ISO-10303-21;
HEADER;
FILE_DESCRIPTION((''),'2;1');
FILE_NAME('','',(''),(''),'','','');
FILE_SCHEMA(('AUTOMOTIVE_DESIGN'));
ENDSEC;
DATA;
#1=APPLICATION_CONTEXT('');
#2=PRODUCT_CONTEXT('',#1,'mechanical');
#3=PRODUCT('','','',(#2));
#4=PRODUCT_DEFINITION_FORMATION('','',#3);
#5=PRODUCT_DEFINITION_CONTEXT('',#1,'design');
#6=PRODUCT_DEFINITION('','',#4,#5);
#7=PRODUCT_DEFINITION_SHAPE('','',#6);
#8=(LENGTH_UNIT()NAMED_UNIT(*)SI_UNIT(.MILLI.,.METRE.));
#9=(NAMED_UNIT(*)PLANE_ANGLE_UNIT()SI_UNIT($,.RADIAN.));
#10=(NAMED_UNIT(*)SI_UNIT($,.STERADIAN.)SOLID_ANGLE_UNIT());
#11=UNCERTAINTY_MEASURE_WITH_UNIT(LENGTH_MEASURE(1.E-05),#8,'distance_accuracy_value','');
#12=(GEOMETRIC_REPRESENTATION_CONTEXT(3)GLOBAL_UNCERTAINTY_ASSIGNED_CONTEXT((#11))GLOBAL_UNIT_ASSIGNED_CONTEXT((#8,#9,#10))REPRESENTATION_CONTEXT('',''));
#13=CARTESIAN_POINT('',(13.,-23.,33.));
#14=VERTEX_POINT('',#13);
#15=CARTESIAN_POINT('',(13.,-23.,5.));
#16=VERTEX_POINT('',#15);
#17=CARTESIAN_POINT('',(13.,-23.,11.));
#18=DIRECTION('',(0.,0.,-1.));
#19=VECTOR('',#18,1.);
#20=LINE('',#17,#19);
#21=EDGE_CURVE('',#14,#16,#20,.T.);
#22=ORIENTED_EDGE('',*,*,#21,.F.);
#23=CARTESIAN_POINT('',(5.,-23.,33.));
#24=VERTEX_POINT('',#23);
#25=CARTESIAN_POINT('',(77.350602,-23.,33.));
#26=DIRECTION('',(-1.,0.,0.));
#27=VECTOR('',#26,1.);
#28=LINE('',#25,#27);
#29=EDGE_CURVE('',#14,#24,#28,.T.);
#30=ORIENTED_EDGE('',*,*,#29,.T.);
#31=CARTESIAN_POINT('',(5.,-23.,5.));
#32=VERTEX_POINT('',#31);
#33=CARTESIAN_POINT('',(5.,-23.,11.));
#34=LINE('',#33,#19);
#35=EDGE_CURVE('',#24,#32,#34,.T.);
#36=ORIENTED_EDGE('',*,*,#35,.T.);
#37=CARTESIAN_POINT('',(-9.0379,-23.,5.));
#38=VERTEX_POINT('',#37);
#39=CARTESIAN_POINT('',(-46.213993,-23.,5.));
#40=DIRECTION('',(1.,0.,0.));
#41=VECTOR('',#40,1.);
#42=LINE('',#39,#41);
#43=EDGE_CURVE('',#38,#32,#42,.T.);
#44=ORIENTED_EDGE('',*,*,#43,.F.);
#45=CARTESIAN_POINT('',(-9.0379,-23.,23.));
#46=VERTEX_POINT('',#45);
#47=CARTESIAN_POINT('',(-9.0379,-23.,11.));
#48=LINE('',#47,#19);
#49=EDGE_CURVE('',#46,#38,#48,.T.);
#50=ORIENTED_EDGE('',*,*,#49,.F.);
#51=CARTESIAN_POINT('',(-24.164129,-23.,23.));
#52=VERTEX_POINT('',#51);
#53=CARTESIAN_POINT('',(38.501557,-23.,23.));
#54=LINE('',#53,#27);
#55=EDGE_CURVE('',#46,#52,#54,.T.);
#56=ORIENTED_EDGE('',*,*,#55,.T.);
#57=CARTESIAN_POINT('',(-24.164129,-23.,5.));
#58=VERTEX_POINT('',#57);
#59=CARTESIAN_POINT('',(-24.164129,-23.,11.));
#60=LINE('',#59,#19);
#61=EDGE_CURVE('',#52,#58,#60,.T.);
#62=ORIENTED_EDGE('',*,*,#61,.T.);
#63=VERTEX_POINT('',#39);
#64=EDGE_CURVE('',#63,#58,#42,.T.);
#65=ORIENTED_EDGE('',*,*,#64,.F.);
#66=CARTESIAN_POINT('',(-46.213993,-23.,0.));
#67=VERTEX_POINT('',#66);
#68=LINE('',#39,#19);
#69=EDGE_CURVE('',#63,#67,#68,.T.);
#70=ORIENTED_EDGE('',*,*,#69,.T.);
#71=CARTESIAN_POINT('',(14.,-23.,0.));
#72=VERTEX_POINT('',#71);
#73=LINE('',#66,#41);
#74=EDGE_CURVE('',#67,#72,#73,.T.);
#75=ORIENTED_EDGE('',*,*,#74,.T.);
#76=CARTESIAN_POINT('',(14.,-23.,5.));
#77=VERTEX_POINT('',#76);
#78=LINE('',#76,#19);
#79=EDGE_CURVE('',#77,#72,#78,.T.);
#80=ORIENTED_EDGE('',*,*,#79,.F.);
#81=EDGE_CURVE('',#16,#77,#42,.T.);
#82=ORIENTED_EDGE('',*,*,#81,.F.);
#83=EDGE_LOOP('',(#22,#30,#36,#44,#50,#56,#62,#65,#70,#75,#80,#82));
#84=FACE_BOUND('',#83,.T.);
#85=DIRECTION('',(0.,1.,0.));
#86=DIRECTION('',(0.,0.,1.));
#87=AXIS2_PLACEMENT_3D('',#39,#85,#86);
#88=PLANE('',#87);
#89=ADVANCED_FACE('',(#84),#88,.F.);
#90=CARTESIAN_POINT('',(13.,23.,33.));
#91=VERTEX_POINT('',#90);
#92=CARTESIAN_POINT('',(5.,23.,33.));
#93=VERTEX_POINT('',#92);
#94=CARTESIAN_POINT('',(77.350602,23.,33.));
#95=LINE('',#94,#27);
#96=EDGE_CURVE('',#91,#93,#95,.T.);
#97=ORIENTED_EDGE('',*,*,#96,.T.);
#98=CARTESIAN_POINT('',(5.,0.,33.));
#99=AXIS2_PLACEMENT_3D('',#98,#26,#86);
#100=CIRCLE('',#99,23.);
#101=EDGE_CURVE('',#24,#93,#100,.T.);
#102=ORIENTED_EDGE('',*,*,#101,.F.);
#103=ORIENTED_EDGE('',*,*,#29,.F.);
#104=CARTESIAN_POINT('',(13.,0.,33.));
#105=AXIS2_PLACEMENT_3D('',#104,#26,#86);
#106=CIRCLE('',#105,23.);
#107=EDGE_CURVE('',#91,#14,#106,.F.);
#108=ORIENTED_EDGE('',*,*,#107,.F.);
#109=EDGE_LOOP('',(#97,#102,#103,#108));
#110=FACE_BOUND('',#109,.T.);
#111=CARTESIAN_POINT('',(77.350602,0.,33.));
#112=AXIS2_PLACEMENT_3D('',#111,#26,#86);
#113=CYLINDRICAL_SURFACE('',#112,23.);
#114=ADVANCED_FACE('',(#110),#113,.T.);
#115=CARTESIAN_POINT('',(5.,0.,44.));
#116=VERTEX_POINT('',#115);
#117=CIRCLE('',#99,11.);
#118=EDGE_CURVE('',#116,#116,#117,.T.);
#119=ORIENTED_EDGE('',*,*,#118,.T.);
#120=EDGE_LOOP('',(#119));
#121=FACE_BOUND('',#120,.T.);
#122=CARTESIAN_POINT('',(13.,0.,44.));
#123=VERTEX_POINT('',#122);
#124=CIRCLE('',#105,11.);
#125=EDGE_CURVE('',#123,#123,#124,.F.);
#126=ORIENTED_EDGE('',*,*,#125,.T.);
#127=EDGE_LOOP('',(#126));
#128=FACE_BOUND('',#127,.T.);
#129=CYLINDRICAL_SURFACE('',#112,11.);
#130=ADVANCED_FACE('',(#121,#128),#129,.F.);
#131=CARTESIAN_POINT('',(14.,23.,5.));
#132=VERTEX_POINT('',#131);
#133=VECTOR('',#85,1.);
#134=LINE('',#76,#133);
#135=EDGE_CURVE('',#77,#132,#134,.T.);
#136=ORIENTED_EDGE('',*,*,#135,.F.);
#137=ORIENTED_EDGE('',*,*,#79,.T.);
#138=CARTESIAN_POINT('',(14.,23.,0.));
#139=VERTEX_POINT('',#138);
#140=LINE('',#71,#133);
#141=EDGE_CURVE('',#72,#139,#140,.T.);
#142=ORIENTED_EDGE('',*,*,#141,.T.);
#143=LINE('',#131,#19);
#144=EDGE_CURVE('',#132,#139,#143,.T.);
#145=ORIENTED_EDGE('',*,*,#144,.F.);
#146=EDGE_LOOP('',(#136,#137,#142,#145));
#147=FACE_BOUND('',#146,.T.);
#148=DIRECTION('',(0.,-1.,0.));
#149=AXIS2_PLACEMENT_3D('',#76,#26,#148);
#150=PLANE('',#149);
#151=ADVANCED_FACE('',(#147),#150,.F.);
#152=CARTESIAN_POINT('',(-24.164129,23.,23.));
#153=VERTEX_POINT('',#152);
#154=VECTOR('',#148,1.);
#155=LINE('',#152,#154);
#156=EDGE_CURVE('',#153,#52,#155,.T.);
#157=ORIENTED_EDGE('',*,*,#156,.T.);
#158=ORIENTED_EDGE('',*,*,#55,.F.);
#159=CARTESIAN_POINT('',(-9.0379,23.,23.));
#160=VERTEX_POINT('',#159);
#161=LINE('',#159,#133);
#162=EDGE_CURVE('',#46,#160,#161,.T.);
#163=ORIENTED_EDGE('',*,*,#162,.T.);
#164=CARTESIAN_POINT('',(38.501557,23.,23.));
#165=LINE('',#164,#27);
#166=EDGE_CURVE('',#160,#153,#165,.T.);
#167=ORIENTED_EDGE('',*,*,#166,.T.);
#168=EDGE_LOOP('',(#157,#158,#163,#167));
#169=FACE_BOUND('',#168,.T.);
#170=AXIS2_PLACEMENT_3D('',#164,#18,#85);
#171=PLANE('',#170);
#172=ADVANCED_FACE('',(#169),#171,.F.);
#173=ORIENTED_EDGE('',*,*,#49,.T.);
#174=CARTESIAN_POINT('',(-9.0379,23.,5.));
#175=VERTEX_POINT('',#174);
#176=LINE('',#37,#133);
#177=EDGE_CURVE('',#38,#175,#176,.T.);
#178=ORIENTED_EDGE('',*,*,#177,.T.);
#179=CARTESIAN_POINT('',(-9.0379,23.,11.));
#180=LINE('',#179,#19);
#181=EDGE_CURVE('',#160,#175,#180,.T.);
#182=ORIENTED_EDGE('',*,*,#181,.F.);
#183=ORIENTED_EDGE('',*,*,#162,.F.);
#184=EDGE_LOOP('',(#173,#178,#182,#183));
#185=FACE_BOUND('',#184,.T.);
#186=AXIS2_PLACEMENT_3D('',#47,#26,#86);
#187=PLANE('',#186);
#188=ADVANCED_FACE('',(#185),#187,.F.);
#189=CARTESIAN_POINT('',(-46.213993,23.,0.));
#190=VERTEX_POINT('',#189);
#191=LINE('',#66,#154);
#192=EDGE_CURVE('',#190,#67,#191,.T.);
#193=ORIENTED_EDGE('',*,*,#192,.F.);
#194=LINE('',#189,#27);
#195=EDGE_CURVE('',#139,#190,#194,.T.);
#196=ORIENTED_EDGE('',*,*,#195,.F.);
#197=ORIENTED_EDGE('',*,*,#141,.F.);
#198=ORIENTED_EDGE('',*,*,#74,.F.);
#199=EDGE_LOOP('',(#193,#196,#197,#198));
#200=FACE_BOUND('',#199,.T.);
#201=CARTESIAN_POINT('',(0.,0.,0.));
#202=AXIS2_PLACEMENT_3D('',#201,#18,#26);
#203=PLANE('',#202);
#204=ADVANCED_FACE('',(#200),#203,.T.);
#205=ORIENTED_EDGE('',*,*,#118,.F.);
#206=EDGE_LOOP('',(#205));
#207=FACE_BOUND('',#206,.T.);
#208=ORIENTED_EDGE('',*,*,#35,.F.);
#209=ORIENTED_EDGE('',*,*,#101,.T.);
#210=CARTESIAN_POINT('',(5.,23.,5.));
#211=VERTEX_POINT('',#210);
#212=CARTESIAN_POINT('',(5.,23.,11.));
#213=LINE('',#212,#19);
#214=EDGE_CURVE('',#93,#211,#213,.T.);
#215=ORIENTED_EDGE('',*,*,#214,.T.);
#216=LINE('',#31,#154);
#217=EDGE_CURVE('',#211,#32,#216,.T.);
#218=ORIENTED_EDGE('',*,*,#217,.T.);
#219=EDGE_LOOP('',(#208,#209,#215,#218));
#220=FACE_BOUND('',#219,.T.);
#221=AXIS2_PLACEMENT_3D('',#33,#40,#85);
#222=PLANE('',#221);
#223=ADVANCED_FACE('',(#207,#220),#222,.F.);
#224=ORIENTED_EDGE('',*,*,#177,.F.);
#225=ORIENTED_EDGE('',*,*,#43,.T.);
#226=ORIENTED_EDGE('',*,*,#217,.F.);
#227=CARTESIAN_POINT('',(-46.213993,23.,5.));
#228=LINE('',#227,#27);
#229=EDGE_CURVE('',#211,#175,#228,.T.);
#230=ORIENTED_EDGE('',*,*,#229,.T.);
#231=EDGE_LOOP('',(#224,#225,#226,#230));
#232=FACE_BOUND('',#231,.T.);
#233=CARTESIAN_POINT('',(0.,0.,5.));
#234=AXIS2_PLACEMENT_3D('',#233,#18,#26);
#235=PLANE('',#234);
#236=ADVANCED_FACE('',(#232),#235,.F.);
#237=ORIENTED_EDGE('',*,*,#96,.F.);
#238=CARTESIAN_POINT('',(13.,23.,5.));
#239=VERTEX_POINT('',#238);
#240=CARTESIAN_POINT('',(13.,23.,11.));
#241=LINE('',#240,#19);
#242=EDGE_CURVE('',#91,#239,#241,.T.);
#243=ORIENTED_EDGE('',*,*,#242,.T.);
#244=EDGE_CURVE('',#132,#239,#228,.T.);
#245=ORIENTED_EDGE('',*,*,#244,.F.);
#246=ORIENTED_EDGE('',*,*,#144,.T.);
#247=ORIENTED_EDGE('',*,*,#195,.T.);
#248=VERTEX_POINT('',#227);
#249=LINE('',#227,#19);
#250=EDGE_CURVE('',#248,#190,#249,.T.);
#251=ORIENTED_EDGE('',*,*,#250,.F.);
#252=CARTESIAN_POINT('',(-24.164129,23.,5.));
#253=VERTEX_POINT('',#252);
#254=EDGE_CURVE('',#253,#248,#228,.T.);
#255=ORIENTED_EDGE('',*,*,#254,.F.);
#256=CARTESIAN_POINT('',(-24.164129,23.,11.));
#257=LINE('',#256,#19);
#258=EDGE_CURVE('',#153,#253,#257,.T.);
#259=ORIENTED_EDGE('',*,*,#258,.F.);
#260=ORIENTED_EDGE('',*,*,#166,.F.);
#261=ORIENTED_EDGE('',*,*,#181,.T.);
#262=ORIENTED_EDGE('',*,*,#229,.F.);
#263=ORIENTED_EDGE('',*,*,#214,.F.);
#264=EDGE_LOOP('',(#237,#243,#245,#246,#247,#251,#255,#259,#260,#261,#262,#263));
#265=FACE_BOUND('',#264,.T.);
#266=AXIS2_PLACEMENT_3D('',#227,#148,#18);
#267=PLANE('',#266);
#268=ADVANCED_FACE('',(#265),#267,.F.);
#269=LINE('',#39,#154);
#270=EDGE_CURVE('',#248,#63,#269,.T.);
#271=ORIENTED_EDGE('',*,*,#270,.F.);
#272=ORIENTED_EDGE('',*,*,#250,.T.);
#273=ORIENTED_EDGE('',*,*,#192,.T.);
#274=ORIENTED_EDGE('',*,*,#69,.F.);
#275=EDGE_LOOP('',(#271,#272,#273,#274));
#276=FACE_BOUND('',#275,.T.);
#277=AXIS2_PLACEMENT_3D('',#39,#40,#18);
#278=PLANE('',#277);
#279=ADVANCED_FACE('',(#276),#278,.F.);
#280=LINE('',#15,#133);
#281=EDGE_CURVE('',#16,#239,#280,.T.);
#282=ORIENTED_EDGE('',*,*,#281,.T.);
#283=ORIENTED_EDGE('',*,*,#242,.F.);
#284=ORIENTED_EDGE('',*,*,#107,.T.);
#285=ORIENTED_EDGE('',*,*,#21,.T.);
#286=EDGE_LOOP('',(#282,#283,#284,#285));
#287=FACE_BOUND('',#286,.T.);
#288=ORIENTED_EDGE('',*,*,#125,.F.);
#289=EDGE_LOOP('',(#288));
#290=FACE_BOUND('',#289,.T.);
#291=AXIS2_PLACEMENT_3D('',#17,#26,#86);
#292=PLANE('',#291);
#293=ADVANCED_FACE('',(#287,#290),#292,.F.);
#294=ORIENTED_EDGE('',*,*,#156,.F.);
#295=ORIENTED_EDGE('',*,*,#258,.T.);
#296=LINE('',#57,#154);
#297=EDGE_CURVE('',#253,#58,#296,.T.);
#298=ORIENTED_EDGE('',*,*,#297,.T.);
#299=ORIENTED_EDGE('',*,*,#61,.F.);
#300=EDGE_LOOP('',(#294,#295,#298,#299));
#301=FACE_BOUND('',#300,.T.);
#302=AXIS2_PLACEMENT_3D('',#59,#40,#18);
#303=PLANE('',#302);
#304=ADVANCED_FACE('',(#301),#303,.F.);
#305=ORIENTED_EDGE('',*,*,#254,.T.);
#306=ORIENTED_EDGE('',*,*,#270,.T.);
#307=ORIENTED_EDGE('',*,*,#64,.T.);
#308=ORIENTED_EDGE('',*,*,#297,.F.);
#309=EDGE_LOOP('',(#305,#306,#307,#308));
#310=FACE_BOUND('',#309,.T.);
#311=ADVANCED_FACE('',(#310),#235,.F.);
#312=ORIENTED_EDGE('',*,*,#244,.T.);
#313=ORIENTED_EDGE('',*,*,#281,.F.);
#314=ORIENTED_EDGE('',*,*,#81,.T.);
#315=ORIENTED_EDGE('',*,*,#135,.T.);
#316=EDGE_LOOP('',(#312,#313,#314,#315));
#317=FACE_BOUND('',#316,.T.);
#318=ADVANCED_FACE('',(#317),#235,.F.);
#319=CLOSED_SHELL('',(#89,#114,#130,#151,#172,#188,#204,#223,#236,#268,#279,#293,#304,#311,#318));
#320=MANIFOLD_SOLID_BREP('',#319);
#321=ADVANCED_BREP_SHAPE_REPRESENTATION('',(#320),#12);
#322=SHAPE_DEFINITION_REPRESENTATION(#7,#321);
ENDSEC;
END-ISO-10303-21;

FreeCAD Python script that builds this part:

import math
import FreeCAD as App
import Part
import Sketcher

V = App.Vector

doc = App.newDocument("Part")
body = doc.addObject("PartDesign::Body", "Body")

# Sketch on XY plane
sketch1 = body.newObject("Sketcher::SketchObject", "Sketch")
sketch1.AttachmentSupport = (doc.getObject("XY_Plane"), [""])
sketch1.MapMode = "FlatFace"
sketch1.addGeometry([
    Part.LineSegment(V(-46.213993, 23, 0), V(-46.213993, -23, 0)),
    Part.LineSegment(V(-46.213993, -23, 0), V(14, -23, 0)),
    Part.LineSegment(V(14, -23, 0), V(14, 23, 0)),
    Part.LineSegment(V(14, 23, 0), V(-46.213993, 23, 0)),
], False)
sketch1.addConstraint([
    Sketcher.Constraint("Coincident", 0, 2, 1, 1),
    Sketcher.Constraint("Coincident", 1, 2, 2, 1),
    Sketcher.Constraint("Coincident", 2, 2, 3, 1),
    Sketcher.Constraint("Coincident", 3, 2, 0, 1),
    Sketcher.Constraint("Vertical", 0),
    Sketcher.Constraint("Horizontal", 1),
    Sketcher.Constraint("Vertical", 2),
    Sketcher.Constraint("Horizontal", 3),
    Sketcher.Constraint("DistanceY", 0, 2, 0, 1, 46.0),
    Sketcher.Constraint("DistanceY", 0, 2, -1, 1, 23.0),
    Sketcher.Constraint("DistanceX", -1, 1, 1, 2, 14.0),
    Sketcher.Constraint("DistanceX", 1, 1, 1, 2, 60.213993),
])
pad1 = body.newObject("PartDesign::Pad", "Pad")
pad1.Profile = sketch1
pad1.Length = 5

# Sketch on XY plane
sketch2 = body.newObject("Sketcher::SketchObject", "Sketch001")
sketch2.AttachmentSupport = (doc.getObject("XY_Plane"), [""])
sketch2.MapMode = "FlatFace"
sketch2.AttachmentOffset = App.Placement(V(0, 0, 5), App.Rotation())
sketch2.addGeometry([
    Part.LineSegment(V(5, 23, 0), V(5, -23, 0)),  # 0
    Part.LineSegment(V(5, -23, 0), V(13, -23, 0)),  # 1
    Part.LineSegment(V(13, -23, 0), V(13, 23, 0)),  # 2
    Part.LineSegment(V(13, 23, 0), V(5, 23, 0)),  # 3
    Part.LineSegment(V(-24.164129, 23, 0), V(-24.164129, -23, 0)),  # 4
    Part.LineSegment(V(-24.164129, -23, 0), V(-9.0379, -23, 0)),  # 5
    Part.LineSegment(V(-9.0379, -23, 0), V(-9.0379, 23, 0)),  # 6
    Part.LineSegment(V(-9.0379, 23, 0), V(-24.164129, 23, 0)),  # 7
], False)
sketch2.addConstraint([
    Sketcher.Constraint("Coincident", 0, 2, 1, 1),
    Sketcher.Constraint("Coincident", 1, 2, 2, 1),
    Sketcher.Constraint("Coincident", 2, 2, 3, 1),
    Sketcher.Constraint("Coincident", 3, 2, 0, 1),
    Sketcher.Constraint("Coincident", 4, 2, 5, 1),
    Sketcher.Constraint("Coincident", 5, 2, 6, 1),
    Sketcher.Constraint("Coincident", 6, 2, 7, 1),
    Sketcher.Constraint("Coincident", 7, 2, 4, 1),
    Sketcher.Constraint("Vertical", 0),
    Sketcher.Constraint("Horizontal", 1),
    Sketcher.Constraint("Vertical", 2),
    Sketcher.Constraint("Horizontal", 3),
    Sketcher.Constraint("Vertical", 4),
    Sketcher.Constraint("Horizontal", 5),
    Sketcher.Constraint("Vertical", 6),
    Sketcher.Constraint("Horizontal", 7),
    Sketcher.Constraint("Horizontal", 1, 2, 4, 2),
    Sketcher.Constraint("Horizontal", 3, 2, 6, 2),
    Sketcher.Constraint("DistanceX", 1, 1, 1, 2, 8.0),
    Sketcher.Constraint("DistanceY", 0, 2, 0, 1, 46.0),
    Sketcher.Constraint("DistanceX", -1, 1, 0, 2, 5.0),
    Sketcher.Constraint("DistanceY", 0, 2, -1, 1, 23.0),
    Sketcher.Constraint("DistanceX", 5, 1, 5, 2, 15.126229),
    Sketcher.Constraint("DistanceX", 5, 2, -1, 1, 9.0379),
])
pad2 = body.newObject("PartDesign::Pad", "Pad001")
pad2.Profile = sketch2
pad2.Length = 6

# Sketch on YZ plane
sketch3 = body.newObject("Sketcher::SketchObject", "Sketch002")
sketch3.AttachmentSupport = (doc.getObject("YZ_Plane"), [""])
sketch3.MapMode = "FlatFace"
sketch3.AttachmentOffset = App.Placement(V(0, 0, 5), App.Rotation())
sketch3.addGeometry([
    Part.LineSegment(V(-23, 11, 0), V(-23, 33, 0)),  # 0
    Part.ArcOfCircle(Part.Circle(V(0, 33, 0), V(0, 0, 1), 23), math.radians(0), math.radians(180)),  # 1
    Part.LineSegment(V(23, 33, 0), V(23, 11, 0)),  # 2
    Part.LineSegment(V(23, 11, 0), V(-23, 11, 0)),  # 3
    Part.Circle(V(0, 33, 0), V(0, 0, 1), 11),  # 4
], False)
sketch3.addConstraint([
    Sketcher.Constraint("Tangent", 0, 2, 1, 2),
    Sketcher.Constraint("Tangent", 1, 1, 2, 1),
    Sketcher.Constraint("Coincident", 2, 2, 3, 1),
    Sketcher.Constraint("Coincident", 3, 2, 0, 1),
    Sketcher.Constraint("Vertical", 0),
    Sketcher.Constraint("Vertical", 2),
    Sketcher.Constraint("Horizontal", 3),
    Sketcher.Constraint("Coincident", 4, 3, 1, 3),
    Sketcher.Constraint("PointOnObject", 1, 3, -2),
    Sketcher.Constraint("Diameter", 4, 22.0),
    Sketcher.Constraint("Radius", 1, 23.0),
    Sketcher.Constraint("DistanceY", 0, 1, 0, 2, 22.0),
    Sketcher.Constraint("DistanceY", -1, 1, 1, 3, 33.0),
])
pad3 = body.newObject("PartDesign::Pad", "Pad002")
pad3.Profile = sketch3
pad3.Length = 8

# Sketch on YZ plane
sketch4 = body.newObject("Sketcher::SketchObject", "Sketch003")
sketch4.AttachmentSupport = (doc.getObject("YZ_Plane"), [""])
sketch4.MapMode = "FlatFace"
sketch4.AttachmentOffset = App.Placement(V(0, 0, -24.164129), App.Rotation())
sketch4.addGeometry([
    Part.LineSegment(V(23, 11, 0), V(-23, 11, 0)),
    Part.LineSegment(V(-23, 11, 0), V(-23, 23, 0)),
    Part.LineSegment(V(-23, 23, 0), V(23, 23, 0)),
    Part.LineSegment(V(23, 23, 0), V(23, 11, 0)),
], False)
sketch4.addConstraint([
    Sketcher.Constraint("Coincident", 0, 2, 1, 1),
    Sketcher.Constraint("Coincident", 1, 2, 2, 1),
    Sketcher.Constraint("Coincident", 2, 2, 3, 1),
    Sketcher.Constraint("Coincident", 3, 2, 0, 1),
    Sketcher.Constraint("Horizontal", 0),
    Sketcher.Constraint("Vertical", 1),
    Sketcher.Constraint("Horizontal", 2),
    Sketcher.Constraint("Vertical", 3),
    Sketcher.Constraint("DistanceX", 0, 2, 0, 1, 46.0),
    Sketcher.Constraint("DistanceY", 1, 1, 1, 2, 12.0),
    Sketcher.Constraint("DistanceX", 0, 2, -1, 1, 23.0),
    Sketcher.Constraint("DistanceY", -1, 1, 0, 2, 11.0),
])
pad4 = body.newObject("PartDesign::Pad", "Pad003")
pad4.Profile = sketch4
pad4.Length = 15.126229

doc.recompute()
